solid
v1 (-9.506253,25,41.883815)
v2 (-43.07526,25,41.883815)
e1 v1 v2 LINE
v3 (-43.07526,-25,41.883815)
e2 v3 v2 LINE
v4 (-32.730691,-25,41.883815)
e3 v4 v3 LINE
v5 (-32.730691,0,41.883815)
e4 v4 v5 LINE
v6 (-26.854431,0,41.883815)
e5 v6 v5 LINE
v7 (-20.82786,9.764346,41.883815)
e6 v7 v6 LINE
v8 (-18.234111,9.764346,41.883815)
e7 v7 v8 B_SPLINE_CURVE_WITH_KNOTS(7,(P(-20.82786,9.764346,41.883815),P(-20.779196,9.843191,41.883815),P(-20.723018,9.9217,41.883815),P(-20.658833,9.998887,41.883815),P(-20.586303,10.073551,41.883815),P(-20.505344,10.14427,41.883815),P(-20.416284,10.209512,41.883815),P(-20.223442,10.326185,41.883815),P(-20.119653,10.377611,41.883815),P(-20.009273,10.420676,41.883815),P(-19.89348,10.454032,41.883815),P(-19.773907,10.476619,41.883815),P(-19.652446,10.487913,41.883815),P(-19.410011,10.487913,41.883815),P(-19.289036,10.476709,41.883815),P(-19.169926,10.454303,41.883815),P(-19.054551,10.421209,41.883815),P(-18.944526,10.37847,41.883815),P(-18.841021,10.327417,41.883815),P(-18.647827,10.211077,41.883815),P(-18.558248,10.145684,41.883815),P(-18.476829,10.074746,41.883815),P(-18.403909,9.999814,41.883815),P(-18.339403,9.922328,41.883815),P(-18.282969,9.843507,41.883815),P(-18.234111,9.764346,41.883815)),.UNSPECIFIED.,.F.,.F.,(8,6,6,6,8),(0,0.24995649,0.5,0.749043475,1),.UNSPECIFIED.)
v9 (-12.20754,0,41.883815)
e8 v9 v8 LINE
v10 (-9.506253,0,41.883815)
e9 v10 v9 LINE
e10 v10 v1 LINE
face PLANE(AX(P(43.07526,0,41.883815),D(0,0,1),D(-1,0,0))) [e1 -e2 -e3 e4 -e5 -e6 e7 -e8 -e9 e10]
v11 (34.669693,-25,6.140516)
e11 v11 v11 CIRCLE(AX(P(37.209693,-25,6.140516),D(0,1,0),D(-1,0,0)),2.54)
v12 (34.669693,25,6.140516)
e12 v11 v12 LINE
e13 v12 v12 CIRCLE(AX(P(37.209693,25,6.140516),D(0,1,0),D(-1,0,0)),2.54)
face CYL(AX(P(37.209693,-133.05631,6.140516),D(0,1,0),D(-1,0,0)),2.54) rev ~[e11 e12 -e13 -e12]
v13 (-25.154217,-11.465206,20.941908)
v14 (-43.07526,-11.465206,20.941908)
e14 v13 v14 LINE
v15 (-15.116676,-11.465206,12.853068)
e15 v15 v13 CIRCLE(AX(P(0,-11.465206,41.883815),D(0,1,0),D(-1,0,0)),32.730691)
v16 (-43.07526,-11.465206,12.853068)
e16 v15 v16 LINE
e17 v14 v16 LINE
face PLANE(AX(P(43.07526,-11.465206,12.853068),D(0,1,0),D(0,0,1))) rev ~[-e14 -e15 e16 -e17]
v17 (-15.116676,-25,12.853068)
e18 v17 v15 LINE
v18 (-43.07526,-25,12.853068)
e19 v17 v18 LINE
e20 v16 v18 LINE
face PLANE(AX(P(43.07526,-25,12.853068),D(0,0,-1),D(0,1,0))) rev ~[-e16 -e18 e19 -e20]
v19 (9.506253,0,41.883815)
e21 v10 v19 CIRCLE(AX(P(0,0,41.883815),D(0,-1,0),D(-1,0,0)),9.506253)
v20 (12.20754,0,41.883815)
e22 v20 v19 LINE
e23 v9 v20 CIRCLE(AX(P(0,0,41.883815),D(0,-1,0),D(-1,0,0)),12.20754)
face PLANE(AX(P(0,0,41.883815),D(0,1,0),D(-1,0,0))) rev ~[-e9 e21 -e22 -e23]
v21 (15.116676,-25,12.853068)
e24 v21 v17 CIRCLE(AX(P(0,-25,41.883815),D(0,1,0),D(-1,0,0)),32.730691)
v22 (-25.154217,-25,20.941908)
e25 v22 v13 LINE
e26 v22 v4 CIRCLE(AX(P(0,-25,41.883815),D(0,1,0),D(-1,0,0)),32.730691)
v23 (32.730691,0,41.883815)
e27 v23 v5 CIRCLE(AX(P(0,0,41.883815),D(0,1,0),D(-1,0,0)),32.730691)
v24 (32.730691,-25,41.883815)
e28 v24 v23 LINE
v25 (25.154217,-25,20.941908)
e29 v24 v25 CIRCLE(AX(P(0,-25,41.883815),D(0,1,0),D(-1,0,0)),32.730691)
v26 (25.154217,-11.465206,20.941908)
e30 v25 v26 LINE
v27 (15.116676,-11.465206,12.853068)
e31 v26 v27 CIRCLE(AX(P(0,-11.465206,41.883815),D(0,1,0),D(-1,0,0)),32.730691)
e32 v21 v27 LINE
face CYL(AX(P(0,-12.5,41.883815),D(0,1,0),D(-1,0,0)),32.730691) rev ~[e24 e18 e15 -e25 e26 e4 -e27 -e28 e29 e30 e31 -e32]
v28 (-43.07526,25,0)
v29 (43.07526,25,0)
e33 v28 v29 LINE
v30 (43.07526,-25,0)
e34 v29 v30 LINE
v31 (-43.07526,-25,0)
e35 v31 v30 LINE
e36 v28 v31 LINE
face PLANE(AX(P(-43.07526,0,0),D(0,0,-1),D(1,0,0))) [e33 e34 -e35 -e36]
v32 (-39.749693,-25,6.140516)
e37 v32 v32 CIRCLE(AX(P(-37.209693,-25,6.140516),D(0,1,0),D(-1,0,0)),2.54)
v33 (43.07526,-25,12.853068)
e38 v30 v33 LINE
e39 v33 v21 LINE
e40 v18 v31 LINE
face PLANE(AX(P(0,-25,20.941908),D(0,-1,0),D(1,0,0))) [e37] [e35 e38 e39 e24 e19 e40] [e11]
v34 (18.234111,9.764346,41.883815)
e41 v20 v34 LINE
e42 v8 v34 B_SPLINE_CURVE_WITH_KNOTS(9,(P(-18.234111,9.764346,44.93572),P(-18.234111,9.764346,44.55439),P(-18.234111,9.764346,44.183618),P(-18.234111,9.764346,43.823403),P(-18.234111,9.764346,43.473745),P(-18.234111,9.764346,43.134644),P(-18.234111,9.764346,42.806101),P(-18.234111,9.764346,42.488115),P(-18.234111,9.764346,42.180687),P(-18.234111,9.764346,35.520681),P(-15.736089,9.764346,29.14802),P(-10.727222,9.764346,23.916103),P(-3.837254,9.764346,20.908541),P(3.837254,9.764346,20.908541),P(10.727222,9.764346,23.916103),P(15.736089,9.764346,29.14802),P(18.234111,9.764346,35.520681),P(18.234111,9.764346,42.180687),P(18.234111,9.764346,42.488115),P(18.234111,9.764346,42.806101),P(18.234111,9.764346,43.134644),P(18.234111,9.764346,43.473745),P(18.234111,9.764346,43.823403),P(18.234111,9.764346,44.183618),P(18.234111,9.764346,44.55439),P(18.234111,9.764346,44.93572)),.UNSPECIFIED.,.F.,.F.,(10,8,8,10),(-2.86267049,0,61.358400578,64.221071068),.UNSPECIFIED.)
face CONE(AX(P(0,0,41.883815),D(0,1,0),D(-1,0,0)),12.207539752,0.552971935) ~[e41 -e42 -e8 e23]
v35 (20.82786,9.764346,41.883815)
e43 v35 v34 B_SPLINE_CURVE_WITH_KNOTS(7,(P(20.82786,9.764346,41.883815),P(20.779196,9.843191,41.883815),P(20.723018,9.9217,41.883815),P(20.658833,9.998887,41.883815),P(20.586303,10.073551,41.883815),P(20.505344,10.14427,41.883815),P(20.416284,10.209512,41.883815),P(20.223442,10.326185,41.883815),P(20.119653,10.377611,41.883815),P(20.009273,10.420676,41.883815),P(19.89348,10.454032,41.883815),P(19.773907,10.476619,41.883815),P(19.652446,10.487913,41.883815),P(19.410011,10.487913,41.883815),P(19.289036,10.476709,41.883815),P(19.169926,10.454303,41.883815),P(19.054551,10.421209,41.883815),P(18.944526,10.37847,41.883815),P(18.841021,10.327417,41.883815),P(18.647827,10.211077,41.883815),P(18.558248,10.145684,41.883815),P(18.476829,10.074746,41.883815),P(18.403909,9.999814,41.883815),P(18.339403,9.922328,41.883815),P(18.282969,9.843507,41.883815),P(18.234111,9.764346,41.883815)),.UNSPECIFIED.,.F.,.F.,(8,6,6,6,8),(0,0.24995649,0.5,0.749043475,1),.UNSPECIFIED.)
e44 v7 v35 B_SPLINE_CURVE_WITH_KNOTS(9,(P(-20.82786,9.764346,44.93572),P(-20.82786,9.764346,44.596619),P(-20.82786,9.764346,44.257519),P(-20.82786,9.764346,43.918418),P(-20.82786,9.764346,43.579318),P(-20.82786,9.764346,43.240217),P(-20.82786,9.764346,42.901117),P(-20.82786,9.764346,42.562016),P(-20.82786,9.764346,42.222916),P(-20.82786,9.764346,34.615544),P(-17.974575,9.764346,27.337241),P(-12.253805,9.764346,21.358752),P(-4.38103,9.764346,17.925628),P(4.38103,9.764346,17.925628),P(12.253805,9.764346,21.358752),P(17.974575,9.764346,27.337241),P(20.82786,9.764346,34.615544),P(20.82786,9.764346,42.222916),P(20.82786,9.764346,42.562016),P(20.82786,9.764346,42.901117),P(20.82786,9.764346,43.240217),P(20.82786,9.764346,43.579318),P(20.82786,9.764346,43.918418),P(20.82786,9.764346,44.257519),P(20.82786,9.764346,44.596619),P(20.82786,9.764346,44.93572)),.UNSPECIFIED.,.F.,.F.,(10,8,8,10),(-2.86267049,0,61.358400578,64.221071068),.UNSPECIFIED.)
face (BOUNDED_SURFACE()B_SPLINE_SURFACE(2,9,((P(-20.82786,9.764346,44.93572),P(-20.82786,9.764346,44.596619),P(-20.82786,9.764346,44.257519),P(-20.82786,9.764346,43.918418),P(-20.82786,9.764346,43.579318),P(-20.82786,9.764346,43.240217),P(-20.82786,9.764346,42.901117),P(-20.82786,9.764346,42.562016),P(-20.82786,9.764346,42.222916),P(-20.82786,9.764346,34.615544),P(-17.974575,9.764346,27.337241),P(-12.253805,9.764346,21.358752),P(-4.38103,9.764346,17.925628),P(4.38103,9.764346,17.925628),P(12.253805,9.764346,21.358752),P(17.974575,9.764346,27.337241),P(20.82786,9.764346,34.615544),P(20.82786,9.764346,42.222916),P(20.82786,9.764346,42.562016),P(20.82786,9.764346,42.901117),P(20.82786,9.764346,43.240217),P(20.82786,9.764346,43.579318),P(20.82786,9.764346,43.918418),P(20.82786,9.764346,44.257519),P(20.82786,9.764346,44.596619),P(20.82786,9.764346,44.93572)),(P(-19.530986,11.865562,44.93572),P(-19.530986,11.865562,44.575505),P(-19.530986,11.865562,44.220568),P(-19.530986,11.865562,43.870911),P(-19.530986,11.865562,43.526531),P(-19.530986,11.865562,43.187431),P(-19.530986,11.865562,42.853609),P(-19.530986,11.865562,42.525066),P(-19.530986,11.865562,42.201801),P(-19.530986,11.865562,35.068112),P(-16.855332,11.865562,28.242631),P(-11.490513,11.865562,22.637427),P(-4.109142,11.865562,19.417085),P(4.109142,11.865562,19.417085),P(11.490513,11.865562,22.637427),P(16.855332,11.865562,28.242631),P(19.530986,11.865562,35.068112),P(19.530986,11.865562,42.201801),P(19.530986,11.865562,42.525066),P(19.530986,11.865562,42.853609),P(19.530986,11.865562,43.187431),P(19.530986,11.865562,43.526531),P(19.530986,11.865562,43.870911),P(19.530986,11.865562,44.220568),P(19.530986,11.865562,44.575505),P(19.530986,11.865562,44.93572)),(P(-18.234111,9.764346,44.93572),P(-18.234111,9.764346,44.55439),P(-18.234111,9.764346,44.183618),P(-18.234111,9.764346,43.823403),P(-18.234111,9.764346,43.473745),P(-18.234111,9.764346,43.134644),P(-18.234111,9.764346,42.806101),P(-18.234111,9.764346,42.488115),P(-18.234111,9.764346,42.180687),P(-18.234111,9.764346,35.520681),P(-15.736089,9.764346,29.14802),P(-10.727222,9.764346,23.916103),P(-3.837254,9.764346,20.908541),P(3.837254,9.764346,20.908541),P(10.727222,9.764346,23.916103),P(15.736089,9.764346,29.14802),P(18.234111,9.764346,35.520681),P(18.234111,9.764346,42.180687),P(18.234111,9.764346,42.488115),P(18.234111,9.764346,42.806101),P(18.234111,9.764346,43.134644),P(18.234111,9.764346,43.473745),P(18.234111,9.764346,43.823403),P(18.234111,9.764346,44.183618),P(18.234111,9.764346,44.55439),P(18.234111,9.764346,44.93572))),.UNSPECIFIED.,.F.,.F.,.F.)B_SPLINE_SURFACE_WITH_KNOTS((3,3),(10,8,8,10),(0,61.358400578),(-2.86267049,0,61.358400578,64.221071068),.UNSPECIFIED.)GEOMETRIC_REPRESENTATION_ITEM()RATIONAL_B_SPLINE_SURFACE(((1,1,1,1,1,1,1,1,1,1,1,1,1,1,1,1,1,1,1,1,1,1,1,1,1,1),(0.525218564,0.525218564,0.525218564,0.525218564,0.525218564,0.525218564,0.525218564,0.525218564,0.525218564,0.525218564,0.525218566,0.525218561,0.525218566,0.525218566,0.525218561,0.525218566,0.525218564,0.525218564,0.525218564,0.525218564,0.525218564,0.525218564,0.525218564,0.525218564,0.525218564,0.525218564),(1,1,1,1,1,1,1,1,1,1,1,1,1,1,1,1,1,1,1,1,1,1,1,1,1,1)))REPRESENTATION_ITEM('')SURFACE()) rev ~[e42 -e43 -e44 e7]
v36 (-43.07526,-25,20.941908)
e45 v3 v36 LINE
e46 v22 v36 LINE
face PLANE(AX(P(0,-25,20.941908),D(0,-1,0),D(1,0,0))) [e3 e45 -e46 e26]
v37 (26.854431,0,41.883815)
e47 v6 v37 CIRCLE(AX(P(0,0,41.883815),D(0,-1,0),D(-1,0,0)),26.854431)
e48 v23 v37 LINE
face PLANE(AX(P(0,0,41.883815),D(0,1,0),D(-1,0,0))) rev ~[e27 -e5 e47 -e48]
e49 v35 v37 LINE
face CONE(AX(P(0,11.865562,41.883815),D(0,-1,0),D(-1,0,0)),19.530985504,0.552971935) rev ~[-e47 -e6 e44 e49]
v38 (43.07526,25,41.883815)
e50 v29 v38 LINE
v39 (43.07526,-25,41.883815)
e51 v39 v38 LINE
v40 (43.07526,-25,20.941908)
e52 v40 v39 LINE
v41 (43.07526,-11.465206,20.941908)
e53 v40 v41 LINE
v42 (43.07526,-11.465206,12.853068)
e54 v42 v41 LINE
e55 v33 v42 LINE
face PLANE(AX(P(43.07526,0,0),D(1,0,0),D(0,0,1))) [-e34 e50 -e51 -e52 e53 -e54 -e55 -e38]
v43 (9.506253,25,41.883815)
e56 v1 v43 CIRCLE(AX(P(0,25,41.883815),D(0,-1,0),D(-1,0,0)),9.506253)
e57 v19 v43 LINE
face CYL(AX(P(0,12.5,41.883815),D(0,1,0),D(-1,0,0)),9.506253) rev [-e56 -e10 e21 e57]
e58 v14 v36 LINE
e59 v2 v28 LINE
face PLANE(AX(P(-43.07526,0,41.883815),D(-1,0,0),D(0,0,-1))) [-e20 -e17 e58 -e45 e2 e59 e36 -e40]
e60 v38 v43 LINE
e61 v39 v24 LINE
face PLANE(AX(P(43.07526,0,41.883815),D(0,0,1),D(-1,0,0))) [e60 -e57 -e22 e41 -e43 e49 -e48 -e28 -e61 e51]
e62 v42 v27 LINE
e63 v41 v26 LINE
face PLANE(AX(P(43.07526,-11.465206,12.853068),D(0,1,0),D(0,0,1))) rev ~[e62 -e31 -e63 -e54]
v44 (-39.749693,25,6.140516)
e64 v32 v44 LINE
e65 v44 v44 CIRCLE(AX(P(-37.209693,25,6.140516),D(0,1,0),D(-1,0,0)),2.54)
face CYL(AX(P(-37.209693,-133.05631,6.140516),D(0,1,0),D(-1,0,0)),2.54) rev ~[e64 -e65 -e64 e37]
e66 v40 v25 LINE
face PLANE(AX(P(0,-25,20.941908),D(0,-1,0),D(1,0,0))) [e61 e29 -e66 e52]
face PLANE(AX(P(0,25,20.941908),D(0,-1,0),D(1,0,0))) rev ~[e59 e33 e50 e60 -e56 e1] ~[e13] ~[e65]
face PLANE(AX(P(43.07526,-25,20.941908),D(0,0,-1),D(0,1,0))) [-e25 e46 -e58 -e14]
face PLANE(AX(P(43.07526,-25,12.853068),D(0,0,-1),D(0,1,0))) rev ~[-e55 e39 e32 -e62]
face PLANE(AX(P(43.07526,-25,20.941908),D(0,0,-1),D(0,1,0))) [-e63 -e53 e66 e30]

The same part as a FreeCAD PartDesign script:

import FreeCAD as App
import Part
import Sketcher

V = App.Vector
Q = App.Units.Quantity


def edges_at(feature, points):
    """Names of the edges that pass closest to the given points."""
    edges = feature.Shape.Edges
    near = lambda p: min(range(len(edges)), key=lambda i: edges[i].distToShape(Part.Vertex(*p))[0])
    return sorted({f"Edge{near(p) + 1}" for p in points})

doc = App.newDocument("Part")
body = doc.addObject("PartDesign::Body", "Body")

sketch1 = body.newObject("Sketcher::SketchObject", "Sketch")
sketch1.AttachmentSupport = (doc.getObject("XZ_Plane"), [""])
sketch1.MapMode = "FlatFace"
sketch1.addGeometry([
    Part.LineSegment(V(-43, 42, 0), V(-43, 0, 0)),
    Part.LineSegment(V(-43, 0, 0), V(43, 0, 0)),
    Part.LineSegment(V(43, 0, 0), V(43, 42, 0)),
    Part.LineSegment(V(43, 42, 0), V(-43, 42, 0)),
], False)
sketch1.addConstraint([
    Sketcher.Constraint("Coincident", 0, 2, 1, 1),
    Sketcher.Constraint("Coincident", 1, 2, 2, 1),
    Sketcher.Constraint("Coincident", 2, 2, 3, 1),
    Sketcher.Constraint("Coincident", 3, 2, 0, 1),
    Sketcher.Constraint("Vertical", 0),
    Sketcher.Constraint("Horizontal", 1),
    Sketcher.Constraint("Vertical", 2),
    Sketcher.Constraint("Horizontal", 3),
    Sketcher.Constraint("Symmetric", 0, 2, 1, 2, -1, 1),
    Sketcher.Constraint("DistanceX", 1, 1, 1, 2, 86.15052),
    Sketcher.Constraint("DistanceY", 0, 2, 0, 1, 41.883815),
])
pad1 = body.newObject("PartDesign::Pad", "Pad")
pad1.Profile = sketch1
pad1.Length = 50
pad1.Midplane = True

sketch2 = body.newObject("Sketcher::SketchObject", "Sketch001")
sketch2.AttachmentSupport = (doc.getObject("XY_Plane"), [""])
sketch2.MapMode = "FlatFace"
sketch2.AttachmentOffset = App.Placement(V(0, 0, 41.883815), App.Rotation())
sketch2.addGeometry([
    Part.LineSegment(V(-20, 12, 0), V(-27, 0, 0)),
    Part.LineSegment(V(-27, 0, 0), V(-12, 0, 0)),
    Part.LineSegment(V(-12, 0, 0), V(-20, 12, 0)),
], False)
sketch2.addConstraint([
    Sketcher.Constraint("Coincident", 0, 2, 1, 1),
    Sketcher.Constraint("Coincident", 1, 2, 2, 1),
    Sketcher.Constraint("Coincident", 2, 2, 0, 1),
    Sketcher.Constraint("Horizontal", 1),
    Sketcher.Constraint("PointOnObject", 0, 2, -1),
    Sketcher.Constraint("Equal", 0, 2),
    Sketcher.Constraint("DistanceX", 1, 1, 1, 2, 14.646892),
    Sketcher.Constraint("DistanceX", 0, 2, -1, 1, 26.854431),
    Sketcher.Constraint("DistanceY", -1, 1, 2, 2, 11.865562),
])
groove = body.newObject("PartDesign::Groove", "Groove")
groove.Profile = sketch2
groove.ReferenceAxis = (sketch2, ["V_Axis"])
groove.Angle = 360

sketch3 = body.newObject("Sketcher::SketchObject", "Sketch002")
sketch3.AttachmentSupport = (doc.getObject("XY_Plane"), [""])
sketch3.MapMode = "FlatFace"
sketch3.AttachmentOffset = App.Placement(V(0, 0, 41.883815), App.Rotation())
sketch3.addGeometry([
    Part.LineSegment(V(-33, 0, 0), V(-33, -25, 0)),
    Part.LineSegment(V(-33, -25, 0), V(0, -25, 0)),
    Part.LineSegment(V(0, -25, 0), V(0, 0, 0)),
    Part.LineSegment(V(0, 0, 0), V(-33, 0, 0)),
], False)
sketch3.addConstraint([
    Sketcher.Constraint("Coincident", 0, 2, 1, 1),
    Sketcher.Constraint("Coincident", 1, 2, 2, 1),
    Sketcher.Constraint("Coincident", 2, 2, 3, 1),
    Sketcher.Constraint("Coincident", 3, 2, 0, 1),
    Sketcher.Constraint("Vertical", 0),
    Sketcher.Constraint("Horizontal", 1),
    Sketcher.Constraint("Vertical", 2),
    Sketcher.Constraint("Horizontal", 3),
    Sketcher.Constraint("Coincident", 2, 2, -1, 1),
    Sketcher.Constraint("DistanceY", 0, 2, 0, 1, 25.0),
    Sketcher.Constraint("DistanceX", 1, 1, 1, 2, 32.730691),
])
groove2 = body.newObject("PartDesign::Groove", "Groove001")
groove2.Profile = sketch3
groove2.ReferenceAxis = (sketch3, ["V_Axis"])
groove2.Angle = 360
doc.recompute()

fillet = body.newObject("PartDesign::Fillet", "Fillet")
fillet.Base = (groove2, edges_at(groove2, [(0, 11.866, 22.353)]))
fillet.Radius = Q("0.06 in")

sketch4 = body.newObject("Sketcher::SketchObject", "Sketch003")
sketch4.AttachmentSupport = (doc.getObject("YZ_Plane"), [""])
sketch4.MapMode = "FlatFace"
sketch4.AttachmentOffset = App.Placement(V(0, 0, 43.07526), App.Rotation())
sketch4.addGeometry([
    Part.LineSegment(V(-25, 21, 0), V(-25, 13, 0)),
    Part.LineSegment(V(-25, 13, 0), V(-11, 13, 0)),
    Part.LineSegment(V(-11, 13, 0), V(-11, 21, 0)),
    Part.LineSegment(V(-11, 21, 0), V(-25, 21, 0)),
], False)
sketch4.addConstraint([
    Sketcher.Constraint("Coincident", 0, 2, 1, 1),
    Sketcher.Constraint("Coincident", 1, 2, 2, 1),
    Sketcher.Constraint("Coincident", 2, 2, 3, 1),
    Sketcher.Constraint("Coincident", 3, 2, 0, 1),
    Sketcher.Constraint("Vertical", 0),
    Sketcher.Constraint("Horizontal", 1),
    Sketcher.Constraint("Vertical", 2),
    Sketcher.Constraint("Horizontal", 3),
    Sketcher.Constraint("DistanceY", 0, 2, 0, 1, 8.088839),
    Sketcher.Constraint("DistanceX", 0, 2, -1, 1, 25.0),
    Sketcher.Constraint("DistanceX", 1, 1, 1, 2, 13.534794),
    Sketcher.Constraint("DistanceY", -1, 1, 0, 2, 12.853068),
])
pocket1 = body.newObject("PartDesign::Pocket", "Pocket")
pocket1.Profile = sketch4
pocket1.Type = "ThroughAll"

sketch5 = body.newObject("Sketcher::SketchObject", "Sketch004")
sketch5.AttachmentSupport = (doc.getObject("XY_Plane"), [""])
sketch5.MapMode = "FlatFace"
sketch5.AttachmentOffset = App.Placement(V(0, 0, 41.883815), App.Rotation())
sketch5.addGeometry([
    Part.LineSegment(V(-10, 25, 0), V(-10, 0, 0)),
    Part.LineSegment(V(-10, 0, 0), V(0, 0, 0)),
    Part.LineSegment(V(0, 0, 0), V(0, 25, 0)),
    Part.LineSegment(V(0, 25, 0), V(-10, 25, 0)),
], False)
sketch5.addConstraint([
    Sketcher.Constraint("Coincident", 0, 2, 1, 1),
    Sketcher.Constraint("Coincident", 1, 2, 2, 1),
    Sketcher.Constraint("Coincident", 2, 2, 3, 1),
    Sketcher.Constraint("Coincident", 3, 2, 0, 1),
    Sketcher.Constraint("Vertical", 0),
    Sketcher.Constraint("Horizontal", 1),
    Sketcher.Constraint("Vertical", 2),
    Sketcher.Constraint("Horizontal", 3),
    Sketcher.Constraint("Coincident", 1, 2, -1, 1),
    Sketcher.Constraint("DistanceY", 0, 2, 0, 1, 25.0),
    Sketcher.Constraint("DistanceX", 1, 1, 1, 2, 9.506253),
])
groove3 = body.newObject("PartDesign::Groove", "Groove002")
groove3.Profile = sketch5
groove3.ReferenceAxis = (sketch5, ["V_Axis"])
groove3.Angle = 360

sketch6 = body.newObject("Sketcher::SketchObject", "Sketch005")
sketch6.AttachmentSupport = (doc.getObject("XZ_Plane"), [""])
sketch6.MapMode = "FlatFace"
sketch6.AttachmentOffset = App.Placement(V(0, 0, 25), App.Rotation())
sketch6.addGeometry([
    Part.Circle(V(-37.2, 6.1, 0), V(0, 0, 1), 2.5),
    Part.Circle(V(37.2, 6.1, 0), V(0, 0, 1), 2.5),
], False)
sketch6.addConstraint([
    Sketcher.Constraint("Equal", 0, 1),
    Sketcher.Constraint("Symmetric", 0, 3, 1, 3, -2),
    Sketcher.Constraint("Diameter", 0, Q("0.2 in")),
    Sketcher.Constraint("DistanceX", 0, 3, -1, 1, 37.209693),
    Sketcher.Constraint("DistanceY", -1, 1, 0, 3, 6.140516),
])
doc.recompute()
hole = body.newObject("PartDesign::Hole", "Hole")
hole.Profile = sketch6
hole.ThreadType = "None"
hole.Diameter = Q("0.2 in")
hole.DepthType = "ThroughAll"

doc.recompute()
